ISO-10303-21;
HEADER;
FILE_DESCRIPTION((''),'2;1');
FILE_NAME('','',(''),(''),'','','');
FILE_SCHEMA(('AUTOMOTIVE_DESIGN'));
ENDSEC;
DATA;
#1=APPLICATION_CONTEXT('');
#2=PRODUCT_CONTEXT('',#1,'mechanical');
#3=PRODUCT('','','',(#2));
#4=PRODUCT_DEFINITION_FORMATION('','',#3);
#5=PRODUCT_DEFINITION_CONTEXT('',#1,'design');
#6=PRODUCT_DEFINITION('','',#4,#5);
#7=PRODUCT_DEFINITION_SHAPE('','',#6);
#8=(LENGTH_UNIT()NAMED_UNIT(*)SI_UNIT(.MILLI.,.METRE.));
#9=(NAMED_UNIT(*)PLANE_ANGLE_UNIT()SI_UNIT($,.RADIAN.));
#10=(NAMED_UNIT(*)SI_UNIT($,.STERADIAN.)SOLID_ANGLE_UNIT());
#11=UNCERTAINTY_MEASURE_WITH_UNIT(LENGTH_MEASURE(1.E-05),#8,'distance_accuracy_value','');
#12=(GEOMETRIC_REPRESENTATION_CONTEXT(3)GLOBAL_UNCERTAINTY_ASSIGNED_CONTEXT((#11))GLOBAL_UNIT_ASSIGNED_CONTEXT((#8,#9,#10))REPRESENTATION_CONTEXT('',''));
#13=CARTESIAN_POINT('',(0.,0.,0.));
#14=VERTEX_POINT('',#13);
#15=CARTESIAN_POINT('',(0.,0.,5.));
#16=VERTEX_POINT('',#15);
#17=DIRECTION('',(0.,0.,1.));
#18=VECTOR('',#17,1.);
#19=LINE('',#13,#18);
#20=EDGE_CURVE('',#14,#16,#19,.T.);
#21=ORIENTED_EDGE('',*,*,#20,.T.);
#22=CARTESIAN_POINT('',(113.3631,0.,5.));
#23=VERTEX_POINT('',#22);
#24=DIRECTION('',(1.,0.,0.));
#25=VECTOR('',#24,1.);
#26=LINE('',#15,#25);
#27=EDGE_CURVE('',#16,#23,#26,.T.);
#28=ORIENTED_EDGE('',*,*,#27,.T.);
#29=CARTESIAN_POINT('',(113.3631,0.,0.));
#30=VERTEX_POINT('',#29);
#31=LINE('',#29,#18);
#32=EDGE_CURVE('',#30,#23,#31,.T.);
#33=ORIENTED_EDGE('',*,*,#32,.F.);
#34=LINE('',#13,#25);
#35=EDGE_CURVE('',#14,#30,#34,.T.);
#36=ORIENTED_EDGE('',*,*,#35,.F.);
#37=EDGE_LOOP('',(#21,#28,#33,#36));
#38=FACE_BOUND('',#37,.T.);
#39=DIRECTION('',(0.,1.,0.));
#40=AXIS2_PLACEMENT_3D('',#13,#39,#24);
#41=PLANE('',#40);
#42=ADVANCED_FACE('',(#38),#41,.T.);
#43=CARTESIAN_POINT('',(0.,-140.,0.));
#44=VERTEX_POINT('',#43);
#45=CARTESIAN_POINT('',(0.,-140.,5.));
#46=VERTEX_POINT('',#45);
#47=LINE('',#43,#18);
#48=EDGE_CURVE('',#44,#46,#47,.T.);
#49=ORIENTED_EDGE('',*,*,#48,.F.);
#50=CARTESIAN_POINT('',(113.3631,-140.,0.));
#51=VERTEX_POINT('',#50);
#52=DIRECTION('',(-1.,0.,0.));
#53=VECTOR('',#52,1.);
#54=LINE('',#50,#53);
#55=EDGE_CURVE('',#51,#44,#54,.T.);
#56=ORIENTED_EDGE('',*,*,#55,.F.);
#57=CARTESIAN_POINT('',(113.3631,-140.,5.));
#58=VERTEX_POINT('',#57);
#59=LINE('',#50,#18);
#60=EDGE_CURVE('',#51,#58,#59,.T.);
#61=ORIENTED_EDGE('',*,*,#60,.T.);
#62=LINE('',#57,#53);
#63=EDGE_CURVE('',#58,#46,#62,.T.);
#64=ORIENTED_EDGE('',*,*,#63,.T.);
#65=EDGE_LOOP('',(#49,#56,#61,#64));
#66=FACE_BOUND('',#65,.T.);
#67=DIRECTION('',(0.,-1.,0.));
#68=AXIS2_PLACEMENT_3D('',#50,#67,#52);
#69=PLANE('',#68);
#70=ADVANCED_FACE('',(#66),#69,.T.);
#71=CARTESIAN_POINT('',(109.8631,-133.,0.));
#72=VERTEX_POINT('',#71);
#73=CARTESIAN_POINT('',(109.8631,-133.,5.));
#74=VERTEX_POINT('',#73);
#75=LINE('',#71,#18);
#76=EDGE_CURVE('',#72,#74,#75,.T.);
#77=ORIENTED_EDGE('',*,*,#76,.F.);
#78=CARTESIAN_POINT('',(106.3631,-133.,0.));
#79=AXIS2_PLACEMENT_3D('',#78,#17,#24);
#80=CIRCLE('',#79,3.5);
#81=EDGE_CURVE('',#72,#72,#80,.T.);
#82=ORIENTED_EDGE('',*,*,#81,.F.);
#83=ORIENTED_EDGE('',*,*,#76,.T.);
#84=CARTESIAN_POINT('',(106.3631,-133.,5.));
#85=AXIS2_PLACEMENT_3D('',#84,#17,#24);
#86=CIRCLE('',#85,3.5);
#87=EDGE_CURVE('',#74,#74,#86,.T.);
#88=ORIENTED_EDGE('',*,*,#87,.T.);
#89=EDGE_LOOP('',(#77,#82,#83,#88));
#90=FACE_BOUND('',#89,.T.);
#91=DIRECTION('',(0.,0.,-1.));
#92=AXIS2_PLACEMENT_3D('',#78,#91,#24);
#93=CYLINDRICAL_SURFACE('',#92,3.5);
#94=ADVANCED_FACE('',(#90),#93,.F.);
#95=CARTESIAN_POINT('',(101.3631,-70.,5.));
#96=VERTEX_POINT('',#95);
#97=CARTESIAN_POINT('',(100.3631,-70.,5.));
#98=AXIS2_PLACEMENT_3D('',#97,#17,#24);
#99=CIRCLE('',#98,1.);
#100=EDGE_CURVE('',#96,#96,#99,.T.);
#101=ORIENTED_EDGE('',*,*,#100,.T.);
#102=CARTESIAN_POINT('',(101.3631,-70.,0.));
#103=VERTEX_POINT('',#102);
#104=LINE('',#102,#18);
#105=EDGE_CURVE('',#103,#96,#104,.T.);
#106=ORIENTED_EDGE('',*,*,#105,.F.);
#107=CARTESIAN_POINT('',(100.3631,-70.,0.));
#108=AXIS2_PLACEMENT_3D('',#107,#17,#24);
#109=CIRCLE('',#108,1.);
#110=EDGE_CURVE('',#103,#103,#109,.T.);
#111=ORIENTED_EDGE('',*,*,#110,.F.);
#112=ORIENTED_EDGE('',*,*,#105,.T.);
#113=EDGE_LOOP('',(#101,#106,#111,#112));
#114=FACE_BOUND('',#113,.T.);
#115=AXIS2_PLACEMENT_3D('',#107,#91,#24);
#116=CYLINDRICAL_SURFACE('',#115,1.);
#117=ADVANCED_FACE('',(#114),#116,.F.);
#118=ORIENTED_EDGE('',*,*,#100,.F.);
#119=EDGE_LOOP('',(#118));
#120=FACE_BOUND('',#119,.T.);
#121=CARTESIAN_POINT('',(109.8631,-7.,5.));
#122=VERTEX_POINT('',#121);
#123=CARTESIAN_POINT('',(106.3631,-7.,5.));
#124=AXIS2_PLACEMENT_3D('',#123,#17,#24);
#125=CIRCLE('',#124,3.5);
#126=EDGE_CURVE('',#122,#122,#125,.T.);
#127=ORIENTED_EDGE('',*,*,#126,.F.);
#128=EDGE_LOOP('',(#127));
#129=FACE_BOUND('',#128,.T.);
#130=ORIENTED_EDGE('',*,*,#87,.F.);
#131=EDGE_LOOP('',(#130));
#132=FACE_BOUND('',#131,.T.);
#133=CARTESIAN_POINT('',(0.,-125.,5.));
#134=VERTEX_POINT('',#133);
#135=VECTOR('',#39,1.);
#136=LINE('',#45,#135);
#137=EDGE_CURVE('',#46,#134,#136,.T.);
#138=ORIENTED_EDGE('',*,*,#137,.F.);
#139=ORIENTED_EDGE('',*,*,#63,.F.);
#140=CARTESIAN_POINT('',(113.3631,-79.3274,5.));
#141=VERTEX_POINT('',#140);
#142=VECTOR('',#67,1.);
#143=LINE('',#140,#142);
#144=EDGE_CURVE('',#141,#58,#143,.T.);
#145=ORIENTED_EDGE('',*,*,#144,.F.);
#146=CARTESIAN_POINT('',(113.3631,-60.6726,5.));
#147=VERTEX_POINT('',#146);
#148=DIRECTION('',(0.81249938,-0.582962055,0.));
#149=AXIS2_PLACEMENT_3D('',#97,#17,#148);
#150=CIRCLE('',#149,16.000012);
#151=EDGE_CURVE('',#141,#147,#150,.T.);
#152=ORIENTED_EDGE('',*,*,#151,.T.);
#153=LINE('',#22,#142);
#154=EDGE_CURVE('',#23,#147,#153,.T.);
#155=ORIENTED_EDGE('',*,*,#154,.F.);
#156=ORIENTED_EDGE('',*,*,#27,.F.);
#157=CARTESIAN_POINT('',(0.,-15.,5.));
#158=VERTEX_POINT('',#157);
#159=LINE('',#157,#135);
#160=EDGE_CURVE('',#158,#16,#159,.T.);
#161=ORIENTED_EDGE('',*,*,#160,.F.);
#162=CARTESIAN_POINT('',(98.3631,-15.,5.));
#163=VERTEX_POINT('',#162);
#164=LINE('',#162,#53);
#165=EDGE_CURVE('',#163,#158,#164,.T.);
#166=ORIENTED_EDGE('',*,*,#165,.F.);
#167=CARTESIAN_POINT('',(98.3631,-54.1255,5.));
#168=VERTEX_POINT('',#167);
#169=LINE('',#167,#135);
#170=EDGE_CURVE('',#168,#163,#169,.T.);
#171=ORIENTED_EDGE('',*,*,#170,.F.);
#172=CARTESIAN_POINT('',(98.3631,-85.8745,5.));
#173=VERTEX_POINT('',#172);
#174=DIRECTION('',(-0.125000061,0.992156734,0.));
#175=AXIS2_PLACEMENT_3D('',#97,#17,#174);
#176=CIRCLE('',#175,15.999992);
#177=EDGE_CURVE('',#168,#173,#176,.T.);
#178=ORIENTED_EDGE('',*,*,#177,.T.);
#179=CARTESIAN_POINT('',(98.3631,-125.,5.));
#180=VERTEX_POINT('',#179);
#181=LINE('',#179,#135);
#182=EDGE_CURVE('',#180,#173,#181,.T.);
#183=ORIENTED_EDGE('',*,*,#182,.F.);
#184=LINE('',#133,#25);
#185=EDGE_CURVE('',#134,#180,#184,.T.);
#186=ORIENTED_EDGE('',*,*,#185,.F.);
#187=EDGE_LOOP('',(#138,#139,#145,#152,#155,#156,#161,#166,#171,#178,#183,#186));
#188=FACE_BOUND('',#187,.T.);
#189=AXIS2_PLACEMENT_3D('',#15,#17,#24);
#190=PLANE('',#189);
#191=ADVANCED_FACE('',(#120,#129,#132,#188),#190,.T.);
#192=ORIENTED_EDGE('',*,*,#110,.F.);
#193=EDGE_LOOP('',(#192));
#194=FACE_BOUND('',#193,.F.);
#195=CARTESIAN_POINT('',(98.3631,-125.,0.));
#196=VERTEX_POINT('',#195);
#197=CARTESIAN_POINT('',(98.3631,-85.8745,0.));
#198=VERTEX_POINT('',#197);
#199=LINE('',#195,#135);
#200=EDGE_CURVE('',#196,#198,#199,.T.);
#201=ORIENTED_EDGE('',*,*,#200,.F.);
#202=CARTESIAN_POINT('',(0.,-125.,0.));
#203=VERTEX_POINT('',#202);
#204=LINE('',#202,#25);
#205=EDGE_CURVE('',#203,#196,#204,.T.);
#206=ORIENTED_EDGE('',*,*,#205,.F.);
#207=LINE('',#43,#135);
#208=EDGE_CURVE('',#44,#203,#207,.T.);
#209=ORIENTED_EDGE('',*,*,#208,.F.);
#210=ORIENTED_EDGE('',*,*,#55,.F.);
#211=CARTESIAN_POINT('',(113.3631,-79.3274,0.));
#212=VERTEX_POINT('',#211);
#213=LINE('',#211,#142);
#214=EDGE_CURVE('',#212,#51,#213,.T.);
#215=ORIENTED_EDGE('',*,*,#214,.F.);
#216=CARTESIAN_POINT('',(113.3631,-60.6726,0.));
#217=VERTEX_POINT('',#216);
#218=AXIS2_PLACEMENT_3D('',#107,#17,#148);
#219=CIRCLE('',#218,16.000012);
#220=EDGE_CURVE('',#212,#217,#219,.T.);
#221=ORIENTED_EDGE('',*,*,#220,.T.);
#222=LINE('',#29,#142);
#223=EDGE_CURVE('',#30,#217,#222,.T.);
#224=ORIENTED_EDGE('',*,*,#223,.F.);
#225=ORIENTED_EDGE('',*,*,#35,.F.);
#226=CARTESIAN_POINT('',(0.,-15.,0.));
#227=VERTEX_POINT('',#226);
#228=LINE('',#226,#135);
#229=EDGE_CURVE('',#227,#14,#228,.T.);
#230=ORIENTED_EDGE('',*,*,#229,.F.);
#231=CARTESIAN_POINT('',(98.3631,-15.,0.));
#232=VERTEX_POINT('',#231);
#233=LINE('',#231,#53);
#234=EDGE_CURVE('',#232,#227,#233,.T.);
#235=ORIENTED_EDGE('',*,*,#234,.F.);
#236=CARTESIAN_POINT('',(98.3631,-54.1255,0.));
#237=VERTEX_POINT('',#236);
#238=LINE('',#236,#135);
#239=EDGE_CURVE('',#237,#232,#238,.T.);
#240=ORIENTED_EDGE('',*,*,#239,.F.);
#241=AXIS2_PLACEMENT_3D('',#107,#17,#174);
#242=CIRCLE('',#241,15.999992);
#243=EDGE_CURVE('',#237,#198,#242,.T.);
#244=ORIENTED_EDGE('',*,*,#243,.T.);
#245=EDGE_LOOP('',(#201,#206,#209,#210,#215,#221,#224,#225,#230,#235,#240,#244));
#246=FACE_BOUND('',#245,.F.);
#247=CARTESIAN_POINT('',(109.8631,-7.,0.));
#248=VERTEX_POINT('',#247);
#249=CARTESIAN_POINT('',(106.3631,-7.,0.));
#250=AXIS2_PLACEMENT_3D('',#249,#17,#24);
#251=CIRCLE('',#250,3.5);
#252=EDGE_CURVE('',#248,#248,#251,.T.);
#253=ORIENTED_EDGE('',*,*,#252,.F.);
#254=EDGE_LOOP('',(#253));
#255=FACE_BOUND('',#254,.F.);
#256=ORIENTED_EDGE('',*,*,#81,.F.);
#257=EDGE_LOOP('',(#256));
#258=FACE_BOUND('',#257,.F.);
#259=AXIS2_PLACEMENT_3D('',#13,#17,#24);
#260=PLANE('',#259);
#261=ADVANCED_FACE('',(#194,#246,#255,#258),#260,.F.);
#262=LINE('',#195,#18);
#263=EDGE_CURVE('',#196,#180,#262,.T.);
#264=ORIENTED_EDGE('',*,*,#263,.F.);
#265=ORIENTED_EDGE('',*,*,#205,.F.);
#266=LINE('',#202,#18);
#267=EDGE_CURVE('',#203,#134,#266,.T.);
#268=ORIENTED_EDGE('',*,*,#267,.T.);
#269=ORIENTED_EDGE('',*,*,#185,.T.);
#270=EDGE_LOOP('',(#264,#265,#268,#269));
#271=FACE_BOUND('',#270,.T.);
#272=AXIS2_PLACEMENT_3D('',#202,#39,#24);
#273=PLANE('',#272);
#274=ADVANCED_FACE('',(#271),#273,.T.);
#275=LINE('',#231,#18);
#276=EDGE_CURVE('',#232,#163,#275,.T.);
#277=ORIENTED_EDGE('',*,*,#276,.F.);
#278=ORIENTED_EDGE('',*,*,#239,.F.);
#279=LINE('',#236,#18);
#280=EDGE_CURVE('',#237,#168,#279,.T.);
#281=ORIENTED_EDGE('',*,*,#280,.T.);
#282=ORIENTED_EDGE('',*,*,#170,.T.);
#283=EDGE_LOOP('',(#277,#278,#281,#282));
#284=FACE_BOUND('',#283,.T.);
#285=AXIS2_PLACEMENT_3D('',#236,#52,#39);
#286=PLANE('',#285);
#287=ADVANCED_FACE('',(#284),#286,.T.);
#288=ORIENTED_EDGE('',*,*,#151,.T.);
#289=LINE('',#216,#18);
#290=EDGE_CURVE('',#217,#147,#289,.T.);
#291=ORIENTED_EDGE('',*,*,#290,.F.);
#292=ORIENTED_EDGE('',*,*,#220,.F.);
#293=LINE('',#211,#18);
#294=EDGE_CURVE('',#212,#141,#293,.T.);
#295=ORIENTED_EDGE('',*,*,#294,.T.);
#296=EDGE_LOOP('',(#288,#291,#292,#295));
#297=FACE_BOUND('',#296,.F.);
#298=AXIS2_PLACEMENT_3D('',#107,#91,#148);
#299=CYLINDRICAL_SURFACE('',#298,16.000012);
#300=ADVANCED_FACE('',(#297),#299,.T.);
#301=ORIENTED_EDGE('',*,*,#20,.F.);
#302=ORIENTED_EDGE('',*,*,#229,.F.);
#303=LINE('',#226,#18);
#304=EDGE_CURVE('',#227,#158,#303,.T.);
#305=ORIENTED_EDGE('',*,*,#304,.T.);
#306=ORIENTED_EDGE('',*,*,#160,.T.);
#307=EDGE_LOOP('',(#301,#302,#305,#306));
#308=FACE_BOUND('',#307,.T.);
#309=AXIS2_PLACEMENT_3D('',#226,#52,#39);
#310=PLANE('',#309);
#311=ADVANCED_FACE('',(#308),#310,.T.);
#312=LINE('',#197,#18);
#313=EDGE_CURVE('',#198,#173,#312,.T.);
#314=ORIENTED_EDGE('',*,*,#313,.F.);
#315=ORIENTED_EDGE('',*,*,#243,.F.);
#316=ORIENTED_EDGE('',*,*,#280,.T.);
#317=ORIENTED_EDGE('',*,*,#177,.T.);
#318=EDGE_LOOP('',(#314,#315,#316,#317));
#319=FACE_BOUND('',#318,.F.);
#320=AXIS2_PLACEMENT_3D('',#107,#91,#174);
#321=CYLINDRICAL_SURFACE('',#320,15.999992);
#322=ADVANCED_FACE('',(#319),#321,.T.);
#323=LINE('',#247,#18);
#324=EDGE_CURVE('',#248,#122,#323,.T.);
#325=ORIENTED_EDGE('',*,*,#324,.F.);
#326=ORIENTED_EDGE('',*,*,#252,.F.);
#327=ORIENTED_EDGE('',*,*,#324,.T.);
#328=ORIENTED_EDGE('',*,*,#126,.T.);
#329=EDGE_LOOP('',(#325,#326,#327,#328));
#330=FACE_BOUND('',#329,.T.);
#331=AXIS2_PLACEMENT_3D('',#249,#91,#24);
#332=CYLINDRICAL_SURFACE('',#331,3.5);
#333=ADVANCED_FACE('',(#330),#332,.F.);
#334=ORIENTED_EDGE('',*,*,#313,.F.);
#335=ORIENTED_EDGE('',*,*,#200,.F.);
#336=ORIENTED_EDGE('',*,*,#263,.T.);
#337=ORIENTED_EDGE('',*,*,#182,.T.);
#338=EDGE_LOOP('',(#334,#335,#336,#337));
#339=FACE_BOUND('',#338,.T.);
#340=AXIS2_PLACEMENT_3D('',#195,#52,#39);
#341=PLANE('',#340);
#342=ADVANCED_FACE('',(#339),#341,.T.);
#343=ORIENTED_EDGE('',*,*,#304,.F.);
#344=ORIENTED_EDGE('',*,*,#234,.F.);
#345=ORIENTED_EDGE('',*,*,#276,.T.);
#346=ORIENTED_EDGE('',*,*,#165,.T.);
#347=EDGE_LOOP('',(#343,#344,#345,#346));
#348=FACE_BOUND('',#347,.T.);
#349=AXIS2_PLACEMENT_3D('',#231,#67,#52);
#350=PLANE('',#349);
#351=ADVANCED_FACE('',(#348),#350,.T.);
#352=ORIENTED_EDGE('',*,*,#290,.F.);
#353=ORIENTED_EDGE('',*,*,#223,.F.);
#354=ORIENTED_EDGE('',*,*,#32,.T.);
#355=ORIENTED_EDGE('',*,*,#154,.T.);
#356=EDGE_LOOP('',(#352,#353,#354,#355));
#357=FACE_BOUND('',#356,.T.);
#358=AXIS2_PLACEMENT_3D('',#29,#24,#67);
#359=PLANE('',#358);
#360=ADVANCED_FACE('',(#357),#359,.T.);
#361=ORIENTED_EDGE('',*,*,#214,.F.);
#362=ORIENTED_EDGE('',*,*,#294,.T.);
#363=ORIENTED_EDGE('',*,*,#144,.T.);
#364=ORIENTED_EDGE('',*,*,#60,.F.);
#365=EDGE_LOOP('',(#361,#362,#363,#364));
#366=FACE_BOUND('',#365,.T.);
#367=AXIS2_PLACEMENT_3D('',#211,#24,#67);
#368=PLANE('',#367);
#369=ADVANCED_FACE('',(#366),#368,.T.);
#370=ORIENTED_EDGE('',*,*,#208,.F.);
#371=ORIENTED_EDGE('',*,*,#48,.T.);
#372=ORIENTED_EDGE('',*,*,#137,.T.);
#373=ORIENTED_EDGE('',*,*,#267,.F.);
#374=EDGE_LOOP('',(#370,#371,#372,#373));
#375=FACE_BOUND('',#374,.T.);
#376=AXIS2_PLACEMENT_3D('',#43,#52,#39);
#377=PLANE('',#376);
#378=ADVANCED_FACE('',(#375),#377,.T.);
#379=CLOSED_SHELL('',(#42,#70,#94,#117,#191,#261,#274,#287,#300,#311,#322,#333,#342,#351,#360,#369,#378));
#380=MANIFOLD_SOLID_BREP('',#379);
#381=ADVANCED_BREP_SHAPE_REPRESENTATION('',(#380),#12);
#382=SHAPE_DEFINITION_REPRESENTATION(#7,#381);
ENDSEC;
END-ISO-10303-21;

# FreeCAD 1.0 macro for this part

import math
import FreeCAD as App
import Part
import Sketcher
Q = App.Units.Quantity

doc = App.newDocument("Part")
body = doc.addObject("PartDesign::Body", "Body")

sketch1 = body.newObject("Sketcher::SketchObject", "Sketch")
sketch1.AttachmentSupport = (doc.getObject("XY_Plane"), [""])
sketch1.MapMode = "FlatFace"
sketch1.addGeometry([
    Part.LineSegment(App.Vector(98.4, -125, 0), App.Vector(0, -125, 0)),
    Part.LineSegment(App.Vector(0, -125, 0), App.Vector(0, -140, 0)),
    Part.LineSegment(App.Vector(0, -140, 0), App.Vector(113.4, -140, 0)),
    Part.LineSegment(App.Vector(113.4, -140, 0), App.Vector(113.4, -79.3, 0)),
    Part.ArcOfCircle(Part.Circle(App.Vector(100.4, -70, 0), App.Vector(0, 0, 1), 16), math.radians(-36), math.radians(36)),
    Part.LineSegment(App.Vector(113.4, -60.7, 0), App.Vector(113.4, 0, 0)),
    Part.LineSegment(App.Vector(113.4, 0, 0), App.Vector(0, 0, 0)),
    Part.LineSegment(App.Vector(0, 0, 0), App.Vector(0, -15, 0)),
    Part.LineSegment(App.Vector(0, -15, 0), App.Vector(98.4, -15, 0)),
    Part.LineSegment(App.Vector(98.4, -15, 0), App.Vector(98.4, -54.1, 0)),
    Part.ArcOfCircle(Part.Circle(App.Vector(100.4, -70, 0), App.Vector(0, 0, 1), 16), math.radians(97), math.radians(263)),
    Part.LineSegment(App.Vector(98.4, -85.9, 0), App.Vector(98.4, -125, 0)),
    Part.Circle(App.Vector(106.4, -133, 0), App.Vector(0, 0, 1), 3.5),
    Part.Circle(App.Vector(100.4, -70, 0), App.Vector(0, 0, 1), 1),
    Part.Circle(App.Vector(106.4, -7, 0), App.Vector(0, 0, 1), 3.5),
], False)
sketch1.addConstraint([
    Sketcher.Constraint("Coincident", 0, 2, 1, 1),
    Sketcher.Constraint("Coincident", 1, 2, 2, 1),
    Sketcher.Constraint("Coincident", 2, 2, 3, 1),
    Sketcher.Constraint("Coincident", 3, 2, 4, 1),
    Sketcher.Constraint("Coincident", 4, 2, 5, 1),
    Sketcher.Constraint("Coincident", 5, 2, 6, 1),
    Sketcher.Constraint("Coincident", 6, 2, 7, 1),
    Sketcher.Constraint("Coincident", 7, 2, 8, 1),
    Sketcher.Constraint("Coincident", 8, 2, 9, 1),
    Sketcher.Constraint("Coincident", 9, 2, 10, 1),
    Sketcher.Constraint("Coincident", 10, 2, 11, 1),
    Sketcher.Constraint("Coincident", 11, 2, 0, 1),
    Sketcher.Constraint("Horizontal", 0),
    Sketcher.Constraint("Vertical", 1),
    Sketcher.Constraint("Horizontal", 2),
    Sketcher.Constraint("Vertical", 3),
    Sketcher.Constraint("Vertical", 5),
    Sketcher.Constraint("Horizontal", 6),
    Sketcher.Constraint("Vertical", 7),
    Sketcher.Constraint("Horizontal", 8),
    Sketcher.Constraint("Vertical", 9),
    Sketcher.Constraint("Vertical", 11),
    Sketcher.Constraint("Coincident", 6, 2, -1, 1),
    Sketcher.Constraint("Coincident", 10, 3, 4, 3),
    Sketcher.Constraint("Coincident", 13, 3, 4, 3),
    Sketcher.Constraint("Equal", 4, 10),
    Sketcher.Constraint("Equal", 12, 14),
    Sketcher.Constraint("PointOnObject", 0, 2, -2),
    Sketcher.Constraint("Vertical", 12, 3, 14, 3),
    Sketcher.Constraint("Vertical", 3, 2, 4, 2),
    Sketcher.Constraint("Vertical", 9, 2, 10, 2),
    Sketcher.Constraint("Equal", 3, 5),
    Sketcher.Constraint("Equal", 1, 7),
    Sketcher.Constraint("Diameter", 13, Q("2 mm")),
    Sketcher.Constraint("Diameter", 12, Q("7 mm")),
    Sketcher.Constraint("Radius", 4, Q("16 mm")),
    Sketcher.Constraint("DistanceX", 8, 2, 4, 3, Q("2 mm")),
    Sketcher.Constraint("DistanceY", 1, 2, 1, 1, Q("15 mm")),
    Sketcher.Constraint("DistanceY", 4, 3, -1, 1, Q("70 mm")),
    Sketcher.Constraint("DistanceY", 12, 3, -1, 1, Q("133 mm")),
    Sketcher.Constraint("DistanceY", 14, 3, -1, 1, Q("7 mm")),
    Sketcher.Constraint("DistanceX", 4, 3, 12, 3, Q("6 mm")),
    Sketcher.Constraint("DistanceX", 12, 3, 2, 2, Q("7 mm")),
    Sketcher.Constraint("DistanceX", 0, 2, 0, 1, Q("98.363 mm")),
])
pad1 = body.newObject("PartDesign::Pad", "Pad")
pad1.Profile = sketch1
pad1.Length = 5

doc.recompute()
